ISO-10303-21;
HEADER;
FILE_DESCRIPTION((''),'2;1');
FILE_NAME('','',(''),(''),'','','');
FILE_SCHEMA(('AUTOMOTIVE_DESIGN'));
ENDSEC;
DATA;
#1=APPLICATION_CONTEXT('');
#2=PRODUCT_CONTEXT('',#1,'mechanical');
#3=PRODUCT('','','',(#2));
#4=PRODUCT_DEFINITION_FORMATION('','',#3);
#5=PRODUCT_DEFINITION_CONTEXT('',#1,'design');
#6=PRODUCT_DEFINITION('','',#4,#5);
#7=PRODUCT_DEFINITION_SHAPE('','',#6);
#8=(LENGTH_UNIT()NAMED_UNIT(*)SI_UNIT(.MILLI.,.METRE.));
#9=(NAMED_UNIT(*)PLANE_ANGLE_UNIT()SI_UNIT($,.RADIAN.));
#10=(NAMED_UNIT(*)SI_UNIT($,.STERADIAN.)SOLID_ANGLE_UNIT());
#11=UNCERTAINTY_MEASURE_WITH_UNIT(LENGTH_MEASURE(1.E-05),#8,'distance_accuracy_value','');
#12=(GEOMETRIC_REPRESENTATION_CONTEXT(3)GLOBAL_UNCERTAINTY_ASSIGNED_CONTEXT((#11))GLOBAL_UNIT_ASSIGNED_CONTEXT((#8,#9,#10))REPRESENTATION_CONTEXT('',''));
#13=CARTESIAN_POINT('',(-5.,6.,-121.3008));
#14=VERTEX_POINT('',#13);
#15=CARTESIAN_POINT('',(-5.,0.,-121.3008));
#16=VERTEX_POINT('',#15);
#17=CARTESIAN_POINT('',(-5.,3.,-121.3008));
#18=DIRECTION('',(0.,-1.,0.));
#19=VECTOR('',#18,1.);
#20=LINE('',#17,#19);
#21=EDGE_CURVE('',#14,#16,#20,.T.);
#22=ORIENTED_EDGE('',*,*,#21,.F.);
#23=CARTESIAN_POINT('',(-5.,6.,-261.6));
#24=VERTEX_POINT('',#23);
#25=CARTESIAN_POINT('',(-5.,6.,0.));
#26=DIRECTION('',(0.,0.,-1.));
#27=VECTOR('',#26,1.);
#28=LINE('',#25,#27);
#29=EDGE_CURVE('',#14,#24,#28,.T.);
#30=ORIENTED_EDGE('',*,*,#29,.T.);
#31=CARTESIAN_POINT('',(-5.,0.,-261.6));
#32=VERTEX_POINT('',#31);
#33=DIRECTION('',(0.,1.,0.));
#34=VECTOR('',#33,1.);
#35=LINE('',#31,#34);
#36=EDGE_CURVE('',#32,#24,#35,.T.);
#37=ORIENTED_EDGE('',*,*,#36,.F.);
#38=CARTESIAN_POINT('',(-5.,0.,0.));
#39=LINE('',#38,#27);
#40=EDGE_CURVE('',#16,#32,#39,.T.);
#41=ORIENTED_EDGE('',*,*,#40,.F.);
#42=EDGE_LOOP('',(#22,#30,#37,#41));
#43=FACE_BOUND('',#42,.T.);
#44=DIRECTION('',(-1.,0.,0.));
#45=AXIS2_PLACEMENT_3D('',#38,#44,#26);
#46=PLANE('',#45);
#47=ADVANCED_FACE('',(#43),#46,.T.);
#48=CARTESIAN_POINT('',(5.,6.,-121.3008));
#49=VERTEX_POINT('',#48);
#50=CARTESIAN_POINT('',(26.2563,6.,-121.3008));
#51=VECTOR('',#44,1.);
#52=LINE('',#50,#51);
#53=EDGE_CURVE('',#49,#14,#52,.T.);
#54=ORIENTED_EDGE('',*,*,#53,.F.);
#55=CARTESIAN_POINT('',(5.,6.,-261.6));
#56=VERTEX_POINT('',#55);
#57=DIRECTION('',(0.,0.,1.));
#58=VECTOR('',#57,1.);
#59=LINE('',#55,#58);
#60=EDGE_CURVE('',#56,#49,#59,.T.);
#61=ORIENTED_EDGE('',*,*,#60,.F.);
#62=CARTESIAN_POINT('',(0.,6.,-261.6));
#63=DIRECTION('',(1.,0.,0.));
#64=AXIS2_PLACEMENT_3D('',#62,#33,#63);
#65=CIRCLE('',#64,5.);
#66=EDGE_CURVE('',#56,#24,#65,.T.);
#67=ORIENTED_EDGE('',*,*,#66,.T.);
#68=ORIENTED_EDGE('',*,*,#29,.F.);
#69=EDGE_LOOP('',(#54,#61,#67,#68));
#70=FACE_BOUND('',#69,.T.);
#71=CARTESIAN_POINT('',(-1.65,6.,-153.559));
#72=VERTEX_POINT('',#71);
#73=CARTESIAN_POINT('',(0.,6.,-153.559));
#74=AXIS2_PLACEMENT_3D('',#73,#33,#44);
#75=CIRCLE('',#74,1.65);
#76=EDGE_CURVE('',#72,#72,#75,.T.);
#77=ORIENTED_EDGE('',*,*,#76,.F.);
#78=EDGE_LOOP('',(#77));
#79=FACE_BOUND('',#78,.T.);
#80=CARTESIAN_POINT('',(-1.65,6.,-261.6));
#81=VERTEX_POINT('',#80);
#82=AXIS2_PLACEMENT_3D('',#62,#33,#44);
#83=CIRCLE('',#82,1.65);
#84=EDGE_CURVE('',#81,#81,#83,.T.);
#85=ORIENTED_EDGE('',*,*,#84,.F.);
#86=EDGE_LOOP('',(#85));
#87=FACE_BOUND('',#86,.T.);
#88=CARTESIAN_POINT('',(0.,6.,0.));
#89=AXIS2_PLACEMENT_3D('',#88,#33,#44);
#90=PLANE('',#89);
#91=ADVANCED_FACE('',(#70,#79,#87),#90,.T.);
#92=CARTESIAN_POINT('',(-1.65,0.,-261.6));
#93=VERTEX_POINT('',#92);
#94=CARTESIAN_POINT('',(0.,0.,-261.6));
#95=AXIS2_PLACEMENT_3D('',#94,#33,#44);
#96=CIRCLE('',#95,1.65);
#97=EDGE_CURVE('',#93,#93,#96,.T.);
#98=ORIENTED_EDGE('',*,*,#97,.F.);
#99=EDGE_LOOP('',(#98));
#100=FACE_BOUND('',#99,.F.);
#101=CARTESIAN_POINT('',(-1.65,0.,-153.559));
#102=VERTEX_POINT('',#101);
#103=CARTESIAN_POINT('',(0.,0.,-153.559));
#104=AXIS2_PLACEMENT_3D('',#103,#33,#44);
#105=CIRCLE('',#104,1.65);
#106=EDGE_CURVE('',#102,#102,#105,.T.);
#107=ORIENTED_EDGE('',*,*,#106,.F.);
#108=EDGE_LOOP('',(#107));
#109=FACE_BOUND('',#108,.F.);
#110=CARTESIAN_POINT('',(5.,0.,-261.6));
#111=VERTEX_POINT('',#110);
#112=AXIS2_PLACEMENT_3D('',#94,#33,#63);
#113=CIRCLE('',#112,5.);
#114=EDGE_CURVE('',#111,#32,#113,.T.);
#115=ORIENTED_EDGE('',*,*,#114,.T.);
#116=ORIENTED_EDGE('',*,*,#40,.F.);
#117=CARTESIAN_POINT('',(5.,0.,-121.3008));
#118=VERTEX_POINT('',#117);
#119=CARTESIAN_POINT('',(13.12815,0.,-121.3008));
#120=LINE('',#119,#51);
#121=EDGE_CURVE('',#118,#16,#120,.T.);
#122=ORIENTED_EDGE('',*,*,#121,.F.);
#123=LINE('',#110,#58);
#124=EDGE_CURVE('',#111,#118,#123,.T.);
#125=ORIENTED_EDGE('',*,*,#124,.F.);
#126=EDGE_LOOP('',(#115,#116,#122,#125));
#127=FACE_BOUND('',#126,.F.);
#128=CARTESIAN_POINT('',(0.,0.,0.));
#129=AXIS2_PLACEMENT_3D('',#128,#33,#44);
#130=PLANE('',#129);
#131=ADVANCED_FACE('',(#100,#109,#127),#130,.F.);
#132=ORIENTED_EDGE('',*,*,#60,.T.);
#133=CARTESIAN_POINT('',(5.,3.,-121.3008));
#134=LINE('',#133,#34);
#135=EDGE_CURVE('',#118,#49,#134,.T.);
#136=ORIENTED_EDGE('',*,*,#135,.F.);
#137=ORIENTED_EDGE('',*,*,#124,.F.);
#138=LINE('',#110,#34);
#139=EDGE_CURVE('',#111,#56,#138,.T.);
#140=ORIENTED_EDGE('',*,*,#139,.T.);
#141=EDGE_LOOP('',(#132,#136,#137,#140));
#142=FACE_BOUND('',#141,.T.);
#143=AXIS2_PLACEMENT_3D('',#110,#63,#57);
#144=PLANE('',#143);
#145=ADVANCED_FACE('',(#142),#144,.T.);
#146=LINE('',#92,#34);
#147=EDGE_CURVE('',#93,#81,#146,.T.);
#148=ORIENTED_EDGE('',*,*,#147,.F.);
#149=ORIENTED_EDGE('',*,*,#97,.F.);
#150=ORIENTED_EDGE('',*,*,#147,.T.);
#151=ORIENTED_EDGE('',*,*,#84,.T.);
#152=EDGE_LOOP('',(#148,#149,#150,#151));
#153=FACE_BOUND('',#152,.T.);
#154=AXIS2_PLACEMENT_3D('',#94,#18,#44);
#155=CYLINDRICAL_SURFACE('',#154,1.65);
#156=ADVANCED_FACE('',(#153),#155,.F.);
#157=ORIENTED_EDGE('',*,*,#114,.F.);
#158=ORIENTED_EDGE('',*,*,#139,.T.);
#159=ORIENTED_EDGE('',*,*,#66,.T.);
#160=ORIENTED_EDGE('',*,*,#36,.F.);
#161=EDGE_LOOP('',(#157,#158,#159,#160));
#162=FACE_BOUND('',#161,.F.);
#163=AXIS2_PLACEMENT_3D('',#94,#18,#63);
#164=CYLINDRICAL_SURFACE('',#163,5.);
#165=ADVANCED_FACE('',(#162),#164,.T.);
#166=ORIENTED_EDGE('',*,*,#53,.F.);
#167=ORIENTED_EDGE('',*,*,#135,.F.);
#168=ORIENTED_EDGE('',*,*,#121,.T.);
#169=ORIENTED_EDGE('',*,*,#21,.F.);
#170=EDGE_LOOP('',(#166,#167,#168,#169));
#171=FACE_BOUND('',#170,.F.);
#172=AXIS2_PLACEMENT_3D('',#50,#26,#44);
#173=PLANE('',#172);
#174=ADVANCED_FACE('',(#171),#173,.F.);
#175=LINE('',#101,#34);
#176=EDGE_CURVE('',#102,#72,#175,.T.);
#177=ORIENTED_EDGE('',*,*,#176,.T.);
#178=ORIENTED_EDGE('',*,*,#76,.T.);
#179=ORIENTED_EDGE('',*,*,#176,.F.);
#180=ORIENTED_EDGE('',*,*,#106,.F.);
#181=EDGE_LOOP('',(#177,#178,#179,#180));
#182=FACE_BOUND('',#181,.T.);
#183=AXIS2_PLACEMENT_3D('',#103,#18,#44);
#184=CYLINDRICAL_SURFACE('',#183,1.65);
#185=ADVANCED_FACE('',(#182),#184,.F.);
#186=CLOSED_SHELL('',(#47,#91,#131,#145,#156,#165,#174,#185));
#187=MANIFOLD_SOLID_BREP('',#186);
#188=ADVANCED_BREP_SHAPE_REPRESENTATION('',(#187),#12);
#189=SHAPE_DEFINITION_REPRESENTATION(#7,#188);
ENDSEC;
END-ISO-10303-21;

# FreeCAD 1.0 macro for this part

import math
import FreeCAD as App
import Part
import Sketcher
from FreeCAD import Vector
Q = App.Units.Quantity

doc = App.newDocument("Part")
params = doc.addObject("Spreadsheet::Sheet", "Params")
for row, (alias, value) in enumerate([
    ("sketch1_radius", "5 mm"),
    ("sketch1_diameter", "3.3 mm"),
    ("sketch1_height", "261.6 mm"),
    ("pad1_length", "6 mm"),
    ("pocket1_length", "100 mm"),
], start=1):
    params.set(f"A{row}", alias)
    params.set(f"B{row}", "=" + value)
    params.setAlias(f"B{row}", alias)

body = doc.addObject("PartDesign::Body", "Body")

# Sketch on XZ plane
sketch1 = doc.addObject("Sketcher::SketchObject", "Sketch")
body.addObject(sketch1)
sketch1.AttachmentSupport = (doc.XZ_Plane, [""])
sketch1.MapMode = "FlatFace"
sketch1.addGeometry(Part.LineSegment(Vector(-5, -261.6, 0), Vector(-5, 0, 0)), False)
sketch1.addGeometry(Part.ArcOfCircle(Part.Circle(Vector(0, 0, 0), Vector(0, 0, 1), 5), math.radians(0), math.radians(180)), False)
sketch1.addGeometry(Part.LineSegment(Vector(5, 0, 0), Vector(5, -261.6, 0)), False)
sketch1.addGeometry(Part.ArcOfCircle(Part.Circle(Vector(0, -261.6, 0), Vector(0, 0, 1), 5), math.radians(180), math.radians(360)), False)
sketch1.addGeometry(Part.Circle(Vector(0, -261.6, 0), Vector(0, 0, 1), 1.65), False)
sketch1.addGeometry(Part.Circle(Vector(0, -153.559, 0), Vector(0, 0, 1), 1.65), False)
sketch1.addGeometry(Part.Circle(Vector(0, 0, 0), Vector(0, 0, 1), 1.65), False)
sketch1.addConstraint(Sketcher.Constraint("Tangent", 0, 2, 1, 2))
sketch1.addConstraint(Sketcher.Constraint("Tangent", 1, 1, 2, 1))
sketch1.addConstraint(Sketcher.Constraint("Tangent", 2, 2, 3, 2))
sketch1.addConstraint(Sketcher.Constraint("Tangent", 3, 1, 0, 1))
sketch1.addConstraint(Sketcher.Constraint("Vertical", 0))
sketch1.addConstraint(Sketcher.Constraint("Vertical", 2))
sketch1.addConstraint(Sketcher.Constraint("Coincident", 1, 3, -1, 1))
sketch1.addConstraint(Sketcher.Constraint("Coincident", 6, 3, -1, 1))
sketch1.addConstraint(Sketcher.Constraint("Coincident", 4, 3, 3, 3))
sketch1.addConstraint(Sketcher.Constraint("Equal", 4, 5))
sketch1.addConstraint(Sketcher.Constraint("Equal", 5, 6))
sketch1.addConstraint(Sketcher.Constraint("PointOnObject", 5, 3, -2))
sketch1.addConstraint(Sketcher.Constraint("Radius", 1, Q("5 mm")))
sketch1.addConstraint(Sketcher.Constraint("Diameter", 4, Q("3.3 mm")))
sketch1.addConstraint(Sketcher.Constraint("DistanceY", 0, 1, 0, 2, Q("261.6 mm")))
sketch1.addConstraint(Sketcher.Constraint("DistanceY", 5, 3, -1, 1, Q("153.559 mm")))
sketch1.setExpression("Constraints[12]", "Params.sketch1_radius")
sketch1.setExpression("Constraints[13]", "Params.sketch1_diameter")
sketch1.setExpression("Constraints[14]", "Params.sketch1_height")
pad1 = doc.addObject("PartDesign::Pad", "Pad")
body.addObject(pad1)
pad1.Profile = sketch1
pad1.setExpression("Length", "Params.pad1_length")
pad1.Reversed = True

# Sketch on XZ plane
sketch2 = doc.addObject("Sketcher::SketchObject", "Sketch001")
body.addObject(sketch2)
sketch2.AttachmentSupport = (doc.XZ_Plane, [""])
sketch2.MapMode = "FlatFace"
sketch2.AttachmentOffset = App.Placement(Vector(0, 0, -6), App.Rotation())
sketch2.addGeometry(Part.LineSegment(Vector(155.5228, -357.0257, 0), Vector(-103.4002, -357.0257, 0)), False)
sketch2.addGeometry(Part.LineSegment(Vector(-103.4002, -357.0257, 0), Vector(-103.4002, 67.8162, 0)), False)
sketch2.addGeometry(Part.LineSegment(Vector(-103.4002, 67.8162, 0), Vector(155.5228, 67.8162, 0)), False)
sketch2.addGeometry(Part.LineSegment(Vector(155.5228, 67.8162, 0), Vector(155.5228, -357.0257, 0)), False)
sketch2.addGeometry(Part.LineSegment(Vector(-22.4574, -121.3008, 0), Vector(-22.4574, -275.926, 0)), False)
sketch2.addGeometry(Part.LineSegment(Vector(-22.4574, -275.926, 0), Vector(26.2563, -275.926, 0)), False)
sketch2.addGeometry(Part.LineSegment(Vector(26.2563, -275.926, 0), Vector(26.2563, -121.3008, 0)), False)
sketch2.addGeometry(Part.LineSegment(Vector(26.2563, -121.3008, 0), Vector(-22.4574, -121.3008, 0)), False)
sketch2.addConstraint(Sketcher.Constraint("Coincident", 0, 2, 1, 1))
sketch2.addConstraint(Sketcher.Constraint("Coincident", 1, 2, 2, 1))
sketch2.addConstraint(Sketcher.Constraint("Coincident", 2, 2, 3, 1))
sketch2.addConstraint(Sketcher.Constraint("Coincident", 3, 2, 0, 1))
sketch2.addConstraint(Sketcher.Constraint("Coincident", 4, 2, 5, 1))
sketch2.addConstraint(Sketcher.Constraint("Coincident", 5, 2, 6, 1))
sketch2.addConstraint(Sketcher.Constraint("Coincident", 6, 2, 7, 1))
sketch2.addConstraint(Sketcher.Constraint("Coincident", 7, 2, 4, 1))
sketch2.addConstraint(Sketcher.Constraint("Horizontal", 0))
sketch2.addConstraint(Sketcher.Constraint("Vertical", 1))
sketch2.addConstraint(Sketcher.Constraint("Horizontal", 2))
sketch2.addConstraint(Sketcher.Constraint("Vertical", 3))
sketch2.addConstraint(Sketcher.Constraint("Vertical", 4))
sketch2.addConstraint(Sketcher.Constraint("Horizontal", 5))
sketch2.addConstraint(Sketcher.Constraint("Vertical", 6))
sketch2.addConstraint(Sketcher.Constraint("Horizontal", 7))
sketch2.addConstraint(Sketcher.Constraint("DistanceX", 0, 2, 0, 1, Q("258.923 mm")))
sketch2.addConstraint(Sketcher.Constraint("DistanceY", 1, 1, 1, 2, Q("424.842 mm")))
sketch2.addConstraint(Sketcher.Constraint("DistanceX", 5, 1, 5, 2, Q("48.7137 mm")))
sketch2.addConstraint(Sketcher.Constraint("DistanceY", 4, 2, 4, 1, Q("154.6252 mm")))
sketch2.addConstraint(Sketcher.Constraint("DistanceY", 4, 2, -1, 1, Q("275.926 mm")))
sketch2.addConstraint(Sketcher.Constraint("DistanceY", 6, 2, 2, 2, Q("189.117 mm")))
sketch2.addConstraint(Sketcher.Constraint("DistanceX", 0, 2, -1, 1, Q("103.4002 mm")))
sketch2.addConstraint(Sketcher.Constraint("DistanceX", 4, 2, -1, 1, Q("22.4574 mm")))
pocket1 = doc.addObject("PartDesign::Pocket", "Pocket")
body.addObject(pocket1)
pocket1.Profile = sketch2
pocket1.setExpression("Length", "Params.pocket1_length")
pocket1.Reversed = True

doc.recompute()
